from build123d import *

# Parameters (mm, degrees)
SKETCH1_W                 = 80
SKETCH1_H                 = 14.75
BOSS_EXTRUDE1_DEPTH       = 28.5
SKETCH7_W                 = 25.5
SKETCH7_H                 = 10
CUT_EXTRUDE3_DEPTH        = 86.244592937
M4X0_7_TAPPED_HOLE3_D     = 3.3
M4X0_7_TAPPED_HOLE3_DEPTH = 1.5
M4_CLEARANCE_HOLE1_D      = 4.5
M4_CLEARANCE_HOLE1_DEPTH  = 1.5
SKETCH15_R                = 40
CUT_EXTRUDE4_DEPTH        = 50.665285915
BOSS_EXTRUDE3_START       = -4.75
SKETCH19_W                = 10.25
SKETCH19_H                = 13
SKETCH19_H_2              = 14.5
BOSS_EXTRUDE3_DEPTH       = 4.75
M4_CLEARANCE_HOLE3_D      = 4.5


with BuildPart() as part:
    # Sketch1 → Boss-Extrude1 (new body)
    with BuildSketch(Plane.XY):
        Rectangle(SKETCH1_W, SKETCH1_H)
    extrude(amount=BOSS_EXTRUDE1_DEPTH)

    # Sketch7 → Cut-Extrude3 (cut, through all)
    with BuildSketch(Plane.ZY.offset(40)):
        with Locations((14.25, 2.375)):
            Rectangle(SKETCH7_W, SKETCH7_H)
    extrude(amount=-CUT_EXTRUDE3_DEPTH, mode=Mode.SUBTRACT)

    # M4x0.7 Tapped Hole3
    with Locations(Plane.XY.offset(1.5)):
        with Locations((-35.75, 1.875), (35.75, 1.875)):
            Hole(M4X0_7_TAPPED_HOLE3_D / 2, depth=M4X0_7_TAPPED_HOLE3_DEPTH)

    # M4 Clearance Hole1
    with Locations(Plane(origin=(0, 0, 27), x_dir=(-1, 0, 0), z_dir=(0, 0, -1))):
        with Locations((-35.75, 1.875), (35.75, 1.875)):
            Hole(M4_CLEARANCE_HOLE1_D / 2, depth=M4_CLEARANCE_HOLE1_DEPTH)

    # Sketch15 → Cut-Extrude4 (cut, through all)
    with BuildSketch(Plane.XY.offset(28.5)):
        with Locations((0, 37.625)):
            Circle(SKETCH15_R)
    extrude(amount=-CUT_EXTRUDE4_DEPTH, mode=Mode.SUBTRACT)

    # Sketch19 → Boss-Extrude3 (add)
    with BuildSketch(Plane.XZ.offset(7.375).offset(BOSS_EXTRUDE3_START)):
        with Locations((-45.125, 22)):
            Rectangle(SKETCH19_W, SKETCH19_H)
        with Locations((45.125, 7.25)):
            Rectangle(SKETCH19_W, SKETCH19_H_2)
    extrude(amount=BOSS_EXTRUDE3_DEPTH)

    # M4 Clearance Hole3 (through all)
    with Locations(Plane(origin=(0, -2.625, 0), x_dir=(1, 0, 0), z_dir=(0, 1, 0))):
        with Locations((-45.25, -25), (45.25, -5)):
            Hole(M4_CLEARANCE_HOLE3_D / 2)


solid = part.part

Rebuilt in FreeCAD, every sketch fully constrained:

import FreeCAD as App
import Part
import Sketcher

doc = App.newDocument("Part")
body = doc.addObject("PartDesign::Body", "Body")

# Sketch on XY plane
sketch1 = body.newObject("Sketcher::SketchObject", "Sketch")
sketch1.AttachmentSupport = (doc.getObject("XY_Plane"), [""])
sketch1.MapMode = "FlatFace"
sketch1.addGeometry([
    Part.LineSegment(App.Vector(-40, 7, 0), App.Vector(-40, -7, 0)),
    Part.LineSegment(App.Vector(-40, -7, 0), App.Vector(40, -7, 0)),
    Part.LineSegment(App.Vector(40, -7, 0), App.Vector(40, 7, 0)),
    Part.LineSegment(App.Vector(40, 7, 0), App.Vector(-40, 7, 0)),
], False)
sketch1.addConstraint([
    Sketcher.Constraint("Coincident", 0, 2, 1, 1),
    Sketcher.Constraint("Coincident", 1, 2, 2, 1),
    Sketcher.Constraint("Coincident", 2, 2, 3, 1),
    Sketcher.Constraint("Coincident", 3, 2, 0, 1),
    Sketcher.Constraint("Vertical", 0),
    Sketcher.Constraint("Horizontal", 1),
    Sketcher.Constraint("Vertical", 2),
    Sketcher.Constraint("Horizontal", 3),
    Sketcher.Constraint("Symmetric", 0, 2, 2, 2, -1, 1),
    Sketcher.Constraint("DistanceX", 1, 1, 1, 2, 80.0),
    Sketcher.Constraint("DistanceY", 0, 2, 0, 1, 14.75),
])
pad1 = body.newObject("PartDesign::Pad", "Pad")
pad1.Profile = sketch1
pad1.Length = 28.5

# Sketch on YZ plane
sketch2 = body.newObject("Sketcher::SketchObject", "Sketch001")
sketch2.AttachmentSupport = (doc.getObject("YZ_Plane"), [""])
sketch2.MapMode = "FlatFace"
sketch2.AttachmentOffset = App.Placement(App.Vector(0, 0, -40), App.Rotation())
sketch2.addGeometry([
    Part.LineSegment(App.Vector(7, 2, 0), App.Vector(-3, 2, 0)),
    Part.LineSegment(App.Vector(-3, 2, 0), App.Vector(-3, 27, 0)),
    Part.LineSegment(App.Vector(-3, 27, 0), App.Vector(7, 27, 0)),
    Part.LineSegment(App.Vector(7, 27, 0), App.Vector(7, 2, 0)),
], False)
sketch2.addConstraint([
    Sketcher.Constraint("Coincident", 0, 2, 1, 1),
    Sketcher.Constraint("Coincident", 1, 2, 2, 1),
    Sketcher.Constraint("Coincident", 2, 2, 3, 1),
    Sketcher.Constraint("Coincident", 3, 2, 0, 1),
    Sketcher.Constraint("Horizontal", 0),
    Sketcher.Constraint("Vertical", 1),
    Sketcher.Constraint("Horizontal", 2),
    Sketcher.Constraint("Vertical", 3),
    Sketcher.Constraint("DistanceX", 0, 2, 0, 1, 10.0),
    Sketcher.Constraint("DistanceY", 1, 1, 1, 2, 25.5),
    Sketcher.Constraint("DistanceY", -1, 1, 1, 2, 27.0),
    Sketcher.Constraint("DistanceX", 0, 2, -1, 1, 2.625),
])
pocket1 = body.newObject("PartDesign::Pocket", "Pocket")
pocket1.Profile = sketch2
pocket1.Type = "ThroughAll"
pocket1.Reversed = True

# Sketch on XY plane
sketch3 = body.newObject("Sketcher::SketchObject", "Sketch002")
sketch3.AttachmentSupport = (doc.getObject("XY_Plane"), [""])
sketch3.MapMode = "FlatFace"
sketch3.AttachmentOffset = App.Placement(App.Vector(0, 0, 1.5), App.Rotation())
sketch3.addGeometry([
    Part.Circle(App.Vector(-35.8, 1.9, 0), App.Vector(0, 0, 1), 1.6),
    Part.Circle(App.Vector(35.8, 1.9, 0), App.Vector(0, 0, 1), 1.6),
], False)
sketch3.addConstraint([
    Sketcher.Constraint("Equal", 0, 1),
    Sketcher.Constraint("Symmetric", 0, 3, 1, 3, -2),
    Sketcher.Constraint("Diameter", 0, 3.3),
    Sketcher.Constraint("DistanceX", 0, 3, 1, 3, 71.5),
    Sketcher.Constraint("DistanceY", -1, 1, 0, 3, 1.875),
])
doc.recompute()
hole = body.newObject("PartDesign::Hole", "Hole")
hole.Profile = sketch3
hole.ThreadType = "None"
hole.Diameter = 3.3
hole.DepthType = "Dimension"
hole.Depth = 1.5
hole.DrillPoint = "Flat"

# Sketch on XY plane
sketch4 = body.newObject("Sketcher::SketchObject", "Sketch003")
sketch4.AttachmentSupport = (doc.getObject("XY_Plane"), [""])
sketch4.MapMode = "FlatFace"
sketch4.AttachmentOffset = App.Placement(App.Vector(0, 0, 27), App.Rotation())
sketch4.addGeometry([
    Part.Circle(App.Vector(35.8, 1.9, 0), App.Vector(0, 0, 1), 2.2),
    Part.Circle(App.Vector(-35.8, 1.9, 0), App.Vector(0, 0, 1), 2.2),
], False)
sketch4.addConstraint([
    Sketcher.Constraint("Equal", 0, 1),
    Sketcher.Constraint("Symmetric", 0, 3, 1, 3, -2),
    Sketcher.Constraint("Diameter", 0, 4.5),
    Sketcher.Constraint("DistanceX", 1, 3, 0, 3, 71.5),
    Sketcher.Constraint("DistanceY", -1, 1, 0, 3, 1.875),
])
doc.recompute()
hole2 = body.newObject("PartDesign::Hole", "Hole001")
hole2.Profile = sketch4
hole2.ThreadType = "None"
hole2.Diameter = 4.5
hole2.DepthType = "Dimension"
hole2.Depth = 1.5
hole2.DrillPoint = "Flat"
hole2.Reversed = True

# Sketch on XY plane
sketch5 = body.newObject("Sketcher::SketchObject", "Sketch004")
sketch5.AttachmentSupport = (doc.getObject("XY_Plane"), [""])
sketch5.MapMode = "FlatFace"
sketch5.AttachmentOffset = App.Placement(App.Vector(0, 0, 28.5), App.Rotation())
sketch5.addGeometry(Part.Circle(App.Vector(0, 38, 0), App.Vector(0, 0, 1), 40), False)
sketch5.addConstraint([
    Sketcher.Constraint("PointOnObject", 0, 3, -2),
    Sketcher.Constraint("Diameter", 0, 80.0),
    Sketcher.Constraint("DistanceY", -1, 1, 0, 3, 37.625),
])
pocket2 = body.newObject("PartDesign::Pocket", "Pocket001")
pocket2.Profile = sketch5
pocket2.Type = "ThroughAll"

# Sketch on XZ plane
sketch6 = body.newObject("Sketcher::SketchObject", "Sketch005")
sketch6.AttachmentSupport = (doc.getObject("XZ_Plane"), [""])
sketch6.MapMode = "FlatFace"
sketch6.AttachmentOffset = App.Placement(App.Vector(0, 0, 2.625), App.Rotation())
sketch6.addGeometry([
    Part.LineSegment(App.Vector(-50, 28, 0), App.Vector(-50, 16, 0)),  # 0
    Part.LineSegment(App.Vector(-50, 16, 0), App.Vector(-40, 16, 0)),  # 1
    Part.LineSegment(App.Vector(-40, 16, 0), App.Vector(-40, 28, 0)),  # 2
    Part.LineSegment(App.Vector(-40, 28, 0), App.Vector(-50, 28, 0)),  # 3
    Part.LineSegment(App.Vector(40, 14, 0), App.Vector(40, 0, 0)),  # 4
    Part.LineSegment(App.Vector(40, 0, 0), App.Vector(50, 0, 0)),  # 5
    Part.LineSegment(App.Vector(50, 0, 0), App.Vector(50, 14, 0)),  # 6
    Part.LineSegment(App.Vector(50, 14, 0), App.Vector(40, 14, 0)),  # 7
], False)
sketch6.addConstraint([
    Sketcher.Constraint("Coincident", 0, 2, 1, 1),
    Sketcher.Constraint("Coincident", 1, 2, 2, 1),
    Sketcher.Constraint("Coincident", 2, 2, 3, 1),
    Sketcher.Constraint("Coincident", 3, 2, 0, 1),
    Sketcher.Constraint("Coincident", 4, 2, 5, 1),
    Sketcher.Constraint("Coincident", 5, 2, 6, 1),
    Sketcher.Constraint("Coincident", 6, 2, 7, 1),
    Sketcher.Constraint("Coincident", 7, 2, 4, 1),
    Sketcher.Constraint("Vertical", 0),
    Sketcher.Constraint("Horizontal", 1),
    Sketcher.Constraint("Vertical", 2),
    Sketcher.Constraint("Horizontal", 3),
    Sketcher.Constraint("Vertical", 4),
    Sketcher.Constraint("Horizontal", 5),
    Sketcher.Constraint("Vertical", 6),
    Sketcher.Constraint("Horizontal", 7),
    Sketcher.Constraint("PointOnObject", 4, 2, -1),
    Sketcher.Constraint("Equal", 3, 5),
    Sketcher.Constraint("DistanceY", 0, 2, 0, 1, 13.0),
    Sketcher.Constraint("DistanceY", 4, 2, 4, 1, 14.5),
    Sketcher.Constraint("DistanceX", 1, 2, -1, 1, 40.0),
    Sketcher.Constraint("DistanceX", -1, 1, 4, 2, 40.0),
    Sketcher.Constraint("DistanceY", 6, 2, 1, 2, 1.0),
    Sketcher.Constraint("DistanceX", 1, 1, 1, 2, 10.25),
])
pad2 = body.newObject("PartDesign::Pad", "Pad001")
pad2.Profile = sketch6
pad2.Length = 4.75

# Sketch on XZ plane
sketch7 = body.newObject("Sketcher::SketchObject", "Sketch006")
sketch7.AttachmentSupport = (doc.getObject("XZ_Plane"), [""])
sketch7.MapMode = "FlatFace"
sketch7.AttachmentOffset = App.Placement(App.Vector(0, 0, 2.625), App.Rotation())
sketch7.addGeometry([
    Part.Circle(App.Vector(-45.2, 25, 0), App.Vector(0, 0, 1), 2.2),
    Part.Circle(App.Vector(45.2, 5, 0), App.Vector(0, 0, 1), 2.2),
], False)
sketch7.addConstraint([
    Sketcher.Constraint("Equal", 0, 1),
    Sketcher.Constraint("Diameter", 0, 4.5),
    Sketcher.Constraint("DistanceY", -1, 1, 0, 3, 25.0),
    Sketcher.Constraint("DistanceY", -1, 1, 1, 3, 5.0),
    Sketcher.Constraint("DistanceX", 0, 3, 1, 3, 90.5),
    Sketcher.Constraint("DistanceX", 0, 3, -1, 1, 45.25),
])
doc.recompute()
hole3 = body.newObject("PartDesign::Hole", "Hole002")
hole3.Profile = sketch7
hole3.ThreadType = "None"
hole3.Diameter = 4.5
hole3.DepthType = "ThroughAll"
hole3.Reversed = True

doc.recompute()
